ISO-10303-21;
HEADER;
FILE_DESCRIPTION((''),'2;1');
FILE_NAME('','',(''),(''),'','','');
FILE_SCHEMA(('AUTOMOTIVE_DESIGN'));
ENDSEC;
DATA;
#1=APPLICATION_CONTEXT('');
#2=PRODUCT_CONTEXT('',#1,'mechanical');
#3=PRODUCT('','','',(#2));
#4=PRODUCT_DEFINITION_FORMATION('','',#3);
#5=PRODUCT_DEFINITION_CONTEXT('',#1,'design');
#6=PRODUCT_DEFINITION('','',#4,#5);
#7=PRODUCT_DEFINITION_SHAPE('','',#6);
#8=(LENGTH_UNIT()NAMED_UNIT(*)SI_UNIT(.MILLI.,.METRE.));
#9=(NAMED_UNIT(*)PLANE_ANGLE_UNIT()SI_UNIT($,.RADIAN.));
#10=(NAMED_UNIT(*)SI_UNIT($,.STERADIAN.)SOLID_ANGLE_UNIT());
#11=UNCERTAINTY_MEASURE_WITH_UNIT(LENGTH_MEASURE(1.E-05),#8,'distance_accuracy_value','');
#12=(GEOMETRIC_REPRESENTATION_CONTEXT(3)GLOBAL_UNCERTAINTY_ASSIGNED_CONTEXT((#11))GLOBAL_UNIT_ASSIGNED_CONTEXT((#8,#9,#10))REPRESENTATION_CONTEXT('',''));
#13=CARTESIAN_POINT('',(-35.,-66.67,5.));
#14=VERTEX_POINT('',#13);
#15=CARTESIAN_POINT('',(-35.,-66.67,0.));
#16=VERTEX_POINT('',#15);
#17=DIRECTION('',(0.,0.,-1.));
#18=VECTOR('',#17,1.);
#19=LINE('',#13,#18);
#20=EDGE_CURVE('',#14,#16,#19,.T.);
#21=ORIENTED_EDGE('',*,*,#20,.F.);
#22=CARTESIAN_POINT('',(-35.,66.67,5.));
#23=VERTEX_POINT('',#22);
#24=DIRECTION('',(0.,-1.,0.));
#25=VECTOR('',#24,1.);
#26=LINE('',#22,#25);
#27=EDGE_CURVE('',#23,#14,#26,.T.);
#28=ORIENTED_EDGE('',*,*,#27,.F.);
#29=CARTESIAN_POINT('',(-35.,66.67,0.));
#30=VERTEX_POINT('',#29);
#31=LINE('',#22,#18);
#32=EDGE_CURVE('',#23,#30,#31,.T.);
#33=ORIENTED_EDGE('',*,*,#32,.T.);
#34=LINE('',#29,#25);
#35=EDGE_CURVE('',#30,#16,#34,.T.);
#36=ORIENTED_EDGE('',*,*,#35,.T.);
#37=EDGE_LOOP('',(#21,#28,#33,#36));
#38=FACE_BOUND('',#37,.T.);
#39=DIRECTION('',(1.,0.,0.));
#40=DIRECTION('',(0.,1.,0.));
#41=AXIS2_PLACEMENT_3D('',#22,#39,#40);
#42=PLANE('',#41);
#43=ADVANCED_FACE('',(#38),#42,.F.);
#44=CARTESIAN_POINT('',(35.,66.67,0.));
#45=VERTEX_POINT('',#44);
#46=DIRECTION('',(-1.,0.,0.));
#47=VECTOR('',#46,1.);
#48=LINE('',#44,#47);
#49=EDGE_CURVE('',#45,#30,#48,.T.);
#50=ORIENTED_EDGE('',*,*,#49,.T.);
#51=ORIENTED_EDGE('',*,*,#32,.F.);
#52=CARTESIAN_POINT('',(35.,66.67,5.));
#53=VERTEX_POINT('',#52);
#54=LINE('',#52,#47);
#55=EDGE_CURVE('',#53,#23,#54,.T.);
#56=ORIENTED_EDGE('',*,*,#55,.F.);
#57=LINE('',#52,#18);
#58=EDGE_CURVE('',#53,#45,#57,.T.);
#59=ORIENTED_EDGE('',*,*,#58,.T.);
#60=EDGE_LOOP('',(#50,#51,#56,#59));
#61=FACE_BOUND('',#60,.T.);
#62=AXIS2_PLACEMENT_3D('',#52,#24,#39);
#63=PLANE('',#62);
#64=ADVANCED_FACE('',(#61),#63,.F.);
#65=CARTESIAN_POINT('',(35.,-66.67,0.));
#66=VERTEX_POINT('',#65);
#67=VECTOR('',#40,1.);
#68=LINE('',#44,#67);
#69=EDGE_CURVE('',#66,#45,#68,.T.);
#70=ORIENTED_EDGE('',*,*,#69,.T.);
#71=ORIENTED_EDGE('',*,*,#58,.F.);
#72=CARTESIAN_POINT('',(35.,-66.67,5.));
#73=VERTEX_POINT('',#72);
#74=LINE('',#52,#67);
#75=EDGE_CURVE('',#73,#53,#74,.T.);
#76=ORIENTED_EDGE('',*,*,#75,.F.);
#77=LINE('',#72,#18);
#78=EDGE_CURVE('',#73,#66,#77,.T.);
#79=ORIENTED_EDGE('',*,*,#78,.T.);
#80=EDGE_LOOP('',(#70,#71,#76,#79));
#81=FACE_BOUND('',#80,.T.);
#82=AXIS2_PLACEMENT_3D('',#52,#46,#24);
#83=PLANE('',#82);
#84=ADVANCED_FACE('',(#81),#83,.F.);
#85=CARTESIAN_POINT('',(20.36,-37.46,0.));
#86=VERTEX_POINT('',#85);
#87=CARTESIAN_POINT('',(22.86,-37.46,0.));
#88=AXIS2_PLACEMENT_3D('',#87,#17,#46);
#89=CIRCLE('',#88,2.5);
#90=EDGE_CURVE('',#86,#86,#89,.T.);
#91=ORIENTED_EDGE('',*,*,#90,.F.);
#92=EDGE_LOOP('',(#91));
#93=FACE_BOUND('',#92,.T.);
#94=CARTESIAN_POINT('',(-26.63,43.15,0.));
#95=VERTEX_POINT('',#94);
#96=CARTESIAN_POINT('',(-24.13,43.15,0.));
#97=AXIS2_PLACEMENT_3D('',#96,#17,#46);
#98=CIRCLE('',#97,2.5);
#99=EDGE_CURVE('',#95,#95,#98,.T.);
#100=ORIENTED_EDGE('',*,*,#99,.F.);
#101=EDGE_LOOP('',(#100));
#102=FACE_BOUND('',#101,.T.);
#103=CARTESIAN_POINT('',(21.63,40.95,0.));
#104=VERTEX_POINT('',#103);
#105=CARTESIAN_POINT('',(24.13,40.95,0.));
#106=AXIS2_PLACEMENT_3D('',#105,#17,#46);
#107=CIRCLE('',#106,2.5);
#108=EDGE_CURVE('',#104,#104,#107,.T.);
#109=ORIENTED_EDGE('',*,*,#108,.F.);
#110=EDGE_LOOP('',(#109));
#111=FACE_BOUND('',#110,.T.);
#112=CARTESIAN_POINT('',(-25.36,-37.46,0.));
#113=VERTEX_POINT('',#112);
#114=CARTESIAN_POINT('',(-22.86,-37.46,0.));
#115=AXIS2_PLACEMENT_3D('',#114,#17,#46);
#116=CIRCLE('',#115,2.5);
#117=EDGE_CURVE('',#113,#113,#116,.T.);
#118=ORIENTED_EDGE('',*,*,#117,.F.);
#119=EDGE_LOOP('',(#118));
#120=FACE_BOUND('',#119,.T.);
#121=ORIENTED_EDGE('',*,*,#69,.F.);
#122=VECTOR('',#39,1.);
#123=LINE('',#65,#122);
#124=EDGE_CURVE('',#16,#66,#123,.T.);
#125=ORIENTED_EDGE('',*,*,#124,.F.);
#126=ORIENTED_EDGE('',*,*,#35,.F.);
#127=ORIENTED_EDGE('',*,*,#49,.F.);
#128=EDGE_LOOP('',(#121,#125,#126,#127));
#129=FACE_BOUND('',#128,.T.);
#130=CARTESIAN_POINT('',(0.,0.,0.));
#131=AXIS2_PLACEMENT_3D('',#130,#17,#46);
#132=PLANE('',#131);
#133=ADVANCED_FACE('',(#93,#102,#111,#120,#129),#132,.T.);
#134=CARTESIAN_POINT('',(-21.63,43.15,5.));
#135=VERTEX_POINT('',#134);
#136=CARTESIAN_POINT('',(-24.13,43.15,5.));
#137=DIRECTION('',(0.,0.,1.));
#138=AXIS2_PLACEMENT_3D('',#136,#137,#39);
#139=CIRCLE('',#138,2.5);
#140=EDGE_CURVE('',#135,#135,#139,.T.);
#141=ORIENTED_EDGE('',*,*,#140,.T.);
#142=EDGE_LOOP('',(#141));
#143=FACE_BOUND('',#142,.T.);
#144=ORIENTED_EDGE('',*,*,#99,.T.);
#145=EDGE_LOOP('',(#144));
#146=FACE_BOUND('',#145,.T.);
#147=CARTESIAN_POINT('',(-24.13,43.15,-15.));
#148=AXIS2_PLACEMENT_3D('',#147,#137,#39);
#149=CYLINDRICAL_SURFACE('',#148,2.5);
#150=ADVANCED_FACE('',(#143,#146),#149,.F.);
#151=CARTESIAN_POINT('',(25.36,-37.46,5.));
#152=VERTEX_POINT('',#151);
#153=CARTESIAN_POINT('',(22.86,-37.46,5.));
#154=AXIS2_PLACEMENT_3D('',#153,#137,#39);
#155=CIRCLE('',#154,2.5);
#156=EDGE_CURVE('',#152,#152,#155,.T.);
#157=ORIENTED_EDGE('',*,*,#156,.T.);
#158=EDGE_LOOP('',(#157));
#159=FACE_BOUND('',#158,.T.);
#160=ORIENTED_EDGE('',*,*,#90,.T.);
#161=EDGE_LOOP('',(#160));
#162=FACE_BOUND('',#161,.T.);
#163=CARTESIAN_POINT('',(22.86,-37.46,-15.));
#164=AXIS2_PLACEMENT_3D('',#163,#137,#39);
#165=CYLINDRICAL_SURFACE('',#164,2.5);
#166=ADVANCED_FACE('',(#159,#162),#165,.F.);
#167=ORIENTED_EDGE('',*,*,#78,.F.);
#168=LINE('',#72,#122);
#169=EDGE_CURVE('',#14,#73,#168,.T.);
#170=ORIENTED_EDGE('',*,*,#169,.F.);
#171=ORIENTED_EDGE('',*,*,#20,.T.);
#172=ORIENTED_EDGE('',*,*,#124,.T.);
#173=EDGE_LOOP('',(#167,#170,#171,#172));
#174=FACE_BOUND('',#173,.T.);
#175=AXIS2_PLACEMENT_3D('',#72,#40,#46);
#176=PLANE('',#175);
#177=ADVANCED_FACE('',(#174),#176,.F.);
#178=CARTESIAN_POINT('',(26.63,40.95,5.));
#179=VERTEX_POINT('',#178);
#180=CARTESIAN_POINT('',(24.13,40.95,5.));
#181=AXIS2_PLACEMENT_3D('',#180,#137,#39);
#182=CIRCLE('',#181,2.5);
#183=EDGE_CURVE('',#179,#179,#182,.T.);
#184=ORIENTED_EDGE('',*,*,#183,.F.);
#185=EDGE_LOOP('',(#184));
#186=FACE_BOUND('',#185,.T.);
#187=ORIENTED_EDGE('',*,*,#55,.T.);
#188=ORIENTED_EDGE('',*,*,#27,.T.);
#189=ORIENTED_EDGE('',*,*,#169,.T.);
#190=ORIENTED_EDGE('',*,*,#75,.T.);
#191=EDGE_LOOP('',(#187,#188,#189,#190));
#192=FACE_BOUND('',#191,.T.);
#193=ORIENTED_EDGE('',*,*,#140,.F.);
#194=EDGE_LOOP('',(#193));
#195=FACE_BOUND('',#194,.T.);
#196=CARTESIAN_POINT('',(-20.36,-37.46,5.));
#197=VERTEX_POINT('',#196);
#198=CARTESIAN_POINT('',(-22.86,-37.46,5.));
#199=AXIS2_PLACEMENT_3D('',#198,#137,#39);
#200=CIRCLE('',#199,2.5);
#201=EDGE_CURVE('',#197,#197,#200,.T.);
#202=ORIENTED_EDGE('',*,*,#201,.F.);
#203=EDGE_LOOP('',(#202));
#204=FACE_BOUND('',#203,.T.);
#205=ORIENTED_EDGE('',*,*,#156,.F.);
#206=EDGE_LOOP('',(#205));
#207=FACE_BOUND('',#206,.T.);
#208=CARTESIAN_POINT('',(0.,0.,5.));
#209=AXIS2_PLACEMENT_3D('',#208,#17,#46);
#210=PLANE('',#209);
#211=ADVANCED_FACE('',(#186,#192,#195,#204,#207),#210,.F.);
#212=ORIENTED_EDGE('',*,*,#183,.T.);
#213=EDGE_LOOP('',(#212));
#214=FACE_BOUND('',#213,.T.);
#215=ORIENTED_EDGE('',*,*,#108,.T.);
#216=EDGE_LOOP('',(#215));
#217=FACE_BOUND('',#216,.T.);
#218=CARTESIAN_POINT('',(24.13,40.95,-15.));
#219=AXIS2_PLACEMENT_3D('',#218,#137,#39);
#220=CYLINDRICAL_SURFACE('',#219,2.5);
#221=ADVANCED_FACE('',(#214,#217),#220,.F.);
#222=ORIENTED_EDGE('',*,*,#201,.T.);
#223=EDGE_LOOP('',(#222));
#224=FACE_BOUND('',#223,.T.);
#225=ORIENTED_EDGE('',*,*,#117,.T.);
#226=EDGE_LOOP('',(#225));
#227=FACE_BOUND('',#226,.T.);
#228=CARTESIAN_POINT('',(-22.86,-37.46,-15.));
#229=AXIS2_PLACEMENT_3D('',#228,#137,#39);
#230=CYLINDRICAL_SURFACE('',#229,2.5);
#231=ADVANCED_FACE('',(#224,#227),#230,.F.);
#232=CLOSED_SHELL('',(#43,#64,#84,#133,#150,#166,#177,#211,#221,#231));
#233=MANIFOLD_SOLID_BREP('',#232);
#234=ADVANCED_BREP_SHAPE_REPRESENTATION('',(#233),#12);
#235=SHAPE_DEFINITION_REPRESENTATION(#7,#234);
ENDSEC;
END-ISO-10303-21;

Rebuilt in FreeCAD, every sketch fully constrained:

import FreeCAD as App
import Part
import Sketcher

V = App.Vector
Q = App.Units.Quantity

doc = App.newDocument("Part")
params = doc.addObject("Spreadsheet::Sheet", "Params")
for row, (alias, value) in enumerate([
    ("sketch1_width", "70 mm"),
    ("sketch1_height", "133.34 mm"),
    ("pad1_length", "5 mm"),
    ("sketch2_diameter", "5 mm"),
    ("pocket1_length", "20 mm"),
], start=1):
    params.set(f"A{row}", alias)
    params.set(f"B{row}", "=" + value)
    params.setAlias(f"B{row}", alias)

body = doc.addObject("PartDesign::Body", "Body")

# Sketch on XY plane
sketch1 = body.newObject("Sketcher::SketchObject", "Sketch")
sketch1.AttachmentSupport = (doc.getObject("XY_Plane"), [""])
sketch1.MapMode = "FlatFace"
sketch1.addGeometry(Part.LineSegment(V(-35, 67, 0), V(-35, -67, 0)), False)
sketch1.addGeometry(Part.LineSegment(V(-35, -67, 0), V(35, -67, 0)), False)
sketch1.addGeometry(Part.LineSegment(V(35, -67, 0), V(35, 67, 0)), False)
sketch1.addGeometry(Part.LineSegment(V(35, 67, 0), V(-35, 67, 0)), False)
sketch1.addConstraint(Sketcher.Constraint("Coincident", 0, 2, 1, 1))
sketch1.addConstraint(Sketcher.Constraint("Coincident", 1, 2, 2, 1))
sketch1.addConstraint(Sketcher.Constraint("Coincident", 2, 2, 3, 1))
sketch1.addConstraint(Sketcher.Constraint("Coincident", 3, 2, 0, 1))
sketch1.addConstraint(Sketcher.Constraint("Vertical", 0))
sketch1.addConstraint(Sketcher.Constraint("Horizontal", 1))
sketch1.addConstraint(Sketcher.Constraint("Vertical", 2))
sketch1.addConstraint(Sketcher.Constraint("Horizontal", 3))
sketch1.addConstraint(Sketcher.Constraint("Symmetric", 0, 2, 2, 2, -1, 1))
sketch1.addConstraint(Sketcher.Constraint("DistanceX", 1, 1, 1, 2, Q("70 mm")))
sketch1.addConstraint(Sketcher.Constraint("DistanceY", 0, 2, 0, 1, Q("133.34 mm")))
sketch1.setExpression("Constraints[9]", "Params.sketch1_width")
sketch1.setExpression("Constraints[10]", "Params.sketch1_height")
pad1 = body.newObject("PartDesign::Pad", "Pad")
pad1.Profile = sketch1
pad1.setExpression("Length", "Params.pad1_length")

# Sketch on XY plane
sketch2 = body.newObject("Sketcher::SketchObject", "Sketch001")
sketch2.AttachmentSupport = (doc.getObject("XY_Plane"), [""])
sketch2.MapMode = "FlatFace"
sketch2.AttachmentOffset = App.Placement(V(0, 0, 5), App.Rotation())
sketch2.addGeometry(Part.Circle(V(-24.1, 43.1, 0), V(0, 0, 1), 2.5), False)
sketch2.addGeometry(Part.Circle(V(24.1, 41, 0), V(0, 0, 1), 2.5), False)
sketch2.addGeometry(Part.Circle(V(22.9, -37.5, 0), V(0, 0, 1), 2.5), False)
sketch2.addGeometry(Part.Circle(V(-22.9, -37.5, 0), V(0, 0, 1), 2.5), False)
sketch2.addConstraint(Sketcher.Constraint("Equal", 0, 1))
sketch2.addConstraint(Sketcher.Constraint("Equal", 1, 2))
sketch2.addConstraint(Sketcher.Constraint("Equal", 2, 3))
sketch2.addConstraint(Sketcher.Constraint("Symmetric", 2, 3, 3, 3, -2))
sketch2.addConstraint(Sketcher.Constraint("Diameter", 0, Q("5 mm")))
sketch2.addConstraint(Sketcher.Constraint("DistanceY", 1, 3, 0, 3, Q("2.2 mm")))
sketch2.addConstraint(Sketcher.Constraint("DistanceX", 0, 3, -1, 1, Q("24.13 mm")))
sketch2.addConstraint(Sketcher.Constraint("DistanceY", -1, 1, 0, 3, Q("43.15 mm")))
sketch2.addConstraint(Sketcher.Constraint("DistanceX", -1, 1, 1, 3, Q("24.13 mm")))
sketch2.addConstraint(Sketcher.Constraint("DistanceX", -1, 1, 2, 3, Q("22.86 mm")))
sketch2.addConstraint(Sketcher.Constraint("DistanceY", 2, 3, -1, 1, Q("37.46 mm")))
sketch2.setExpression("Constraints[4]", "Params.sketch2_diameter")
pocket1 = body.newObject("PartDesign::Pocket", "Pocket")
pocket1.Profile = sketch2
pocket1.setExpression("Length", "Params.pocket1_length")

doc.recompute()
